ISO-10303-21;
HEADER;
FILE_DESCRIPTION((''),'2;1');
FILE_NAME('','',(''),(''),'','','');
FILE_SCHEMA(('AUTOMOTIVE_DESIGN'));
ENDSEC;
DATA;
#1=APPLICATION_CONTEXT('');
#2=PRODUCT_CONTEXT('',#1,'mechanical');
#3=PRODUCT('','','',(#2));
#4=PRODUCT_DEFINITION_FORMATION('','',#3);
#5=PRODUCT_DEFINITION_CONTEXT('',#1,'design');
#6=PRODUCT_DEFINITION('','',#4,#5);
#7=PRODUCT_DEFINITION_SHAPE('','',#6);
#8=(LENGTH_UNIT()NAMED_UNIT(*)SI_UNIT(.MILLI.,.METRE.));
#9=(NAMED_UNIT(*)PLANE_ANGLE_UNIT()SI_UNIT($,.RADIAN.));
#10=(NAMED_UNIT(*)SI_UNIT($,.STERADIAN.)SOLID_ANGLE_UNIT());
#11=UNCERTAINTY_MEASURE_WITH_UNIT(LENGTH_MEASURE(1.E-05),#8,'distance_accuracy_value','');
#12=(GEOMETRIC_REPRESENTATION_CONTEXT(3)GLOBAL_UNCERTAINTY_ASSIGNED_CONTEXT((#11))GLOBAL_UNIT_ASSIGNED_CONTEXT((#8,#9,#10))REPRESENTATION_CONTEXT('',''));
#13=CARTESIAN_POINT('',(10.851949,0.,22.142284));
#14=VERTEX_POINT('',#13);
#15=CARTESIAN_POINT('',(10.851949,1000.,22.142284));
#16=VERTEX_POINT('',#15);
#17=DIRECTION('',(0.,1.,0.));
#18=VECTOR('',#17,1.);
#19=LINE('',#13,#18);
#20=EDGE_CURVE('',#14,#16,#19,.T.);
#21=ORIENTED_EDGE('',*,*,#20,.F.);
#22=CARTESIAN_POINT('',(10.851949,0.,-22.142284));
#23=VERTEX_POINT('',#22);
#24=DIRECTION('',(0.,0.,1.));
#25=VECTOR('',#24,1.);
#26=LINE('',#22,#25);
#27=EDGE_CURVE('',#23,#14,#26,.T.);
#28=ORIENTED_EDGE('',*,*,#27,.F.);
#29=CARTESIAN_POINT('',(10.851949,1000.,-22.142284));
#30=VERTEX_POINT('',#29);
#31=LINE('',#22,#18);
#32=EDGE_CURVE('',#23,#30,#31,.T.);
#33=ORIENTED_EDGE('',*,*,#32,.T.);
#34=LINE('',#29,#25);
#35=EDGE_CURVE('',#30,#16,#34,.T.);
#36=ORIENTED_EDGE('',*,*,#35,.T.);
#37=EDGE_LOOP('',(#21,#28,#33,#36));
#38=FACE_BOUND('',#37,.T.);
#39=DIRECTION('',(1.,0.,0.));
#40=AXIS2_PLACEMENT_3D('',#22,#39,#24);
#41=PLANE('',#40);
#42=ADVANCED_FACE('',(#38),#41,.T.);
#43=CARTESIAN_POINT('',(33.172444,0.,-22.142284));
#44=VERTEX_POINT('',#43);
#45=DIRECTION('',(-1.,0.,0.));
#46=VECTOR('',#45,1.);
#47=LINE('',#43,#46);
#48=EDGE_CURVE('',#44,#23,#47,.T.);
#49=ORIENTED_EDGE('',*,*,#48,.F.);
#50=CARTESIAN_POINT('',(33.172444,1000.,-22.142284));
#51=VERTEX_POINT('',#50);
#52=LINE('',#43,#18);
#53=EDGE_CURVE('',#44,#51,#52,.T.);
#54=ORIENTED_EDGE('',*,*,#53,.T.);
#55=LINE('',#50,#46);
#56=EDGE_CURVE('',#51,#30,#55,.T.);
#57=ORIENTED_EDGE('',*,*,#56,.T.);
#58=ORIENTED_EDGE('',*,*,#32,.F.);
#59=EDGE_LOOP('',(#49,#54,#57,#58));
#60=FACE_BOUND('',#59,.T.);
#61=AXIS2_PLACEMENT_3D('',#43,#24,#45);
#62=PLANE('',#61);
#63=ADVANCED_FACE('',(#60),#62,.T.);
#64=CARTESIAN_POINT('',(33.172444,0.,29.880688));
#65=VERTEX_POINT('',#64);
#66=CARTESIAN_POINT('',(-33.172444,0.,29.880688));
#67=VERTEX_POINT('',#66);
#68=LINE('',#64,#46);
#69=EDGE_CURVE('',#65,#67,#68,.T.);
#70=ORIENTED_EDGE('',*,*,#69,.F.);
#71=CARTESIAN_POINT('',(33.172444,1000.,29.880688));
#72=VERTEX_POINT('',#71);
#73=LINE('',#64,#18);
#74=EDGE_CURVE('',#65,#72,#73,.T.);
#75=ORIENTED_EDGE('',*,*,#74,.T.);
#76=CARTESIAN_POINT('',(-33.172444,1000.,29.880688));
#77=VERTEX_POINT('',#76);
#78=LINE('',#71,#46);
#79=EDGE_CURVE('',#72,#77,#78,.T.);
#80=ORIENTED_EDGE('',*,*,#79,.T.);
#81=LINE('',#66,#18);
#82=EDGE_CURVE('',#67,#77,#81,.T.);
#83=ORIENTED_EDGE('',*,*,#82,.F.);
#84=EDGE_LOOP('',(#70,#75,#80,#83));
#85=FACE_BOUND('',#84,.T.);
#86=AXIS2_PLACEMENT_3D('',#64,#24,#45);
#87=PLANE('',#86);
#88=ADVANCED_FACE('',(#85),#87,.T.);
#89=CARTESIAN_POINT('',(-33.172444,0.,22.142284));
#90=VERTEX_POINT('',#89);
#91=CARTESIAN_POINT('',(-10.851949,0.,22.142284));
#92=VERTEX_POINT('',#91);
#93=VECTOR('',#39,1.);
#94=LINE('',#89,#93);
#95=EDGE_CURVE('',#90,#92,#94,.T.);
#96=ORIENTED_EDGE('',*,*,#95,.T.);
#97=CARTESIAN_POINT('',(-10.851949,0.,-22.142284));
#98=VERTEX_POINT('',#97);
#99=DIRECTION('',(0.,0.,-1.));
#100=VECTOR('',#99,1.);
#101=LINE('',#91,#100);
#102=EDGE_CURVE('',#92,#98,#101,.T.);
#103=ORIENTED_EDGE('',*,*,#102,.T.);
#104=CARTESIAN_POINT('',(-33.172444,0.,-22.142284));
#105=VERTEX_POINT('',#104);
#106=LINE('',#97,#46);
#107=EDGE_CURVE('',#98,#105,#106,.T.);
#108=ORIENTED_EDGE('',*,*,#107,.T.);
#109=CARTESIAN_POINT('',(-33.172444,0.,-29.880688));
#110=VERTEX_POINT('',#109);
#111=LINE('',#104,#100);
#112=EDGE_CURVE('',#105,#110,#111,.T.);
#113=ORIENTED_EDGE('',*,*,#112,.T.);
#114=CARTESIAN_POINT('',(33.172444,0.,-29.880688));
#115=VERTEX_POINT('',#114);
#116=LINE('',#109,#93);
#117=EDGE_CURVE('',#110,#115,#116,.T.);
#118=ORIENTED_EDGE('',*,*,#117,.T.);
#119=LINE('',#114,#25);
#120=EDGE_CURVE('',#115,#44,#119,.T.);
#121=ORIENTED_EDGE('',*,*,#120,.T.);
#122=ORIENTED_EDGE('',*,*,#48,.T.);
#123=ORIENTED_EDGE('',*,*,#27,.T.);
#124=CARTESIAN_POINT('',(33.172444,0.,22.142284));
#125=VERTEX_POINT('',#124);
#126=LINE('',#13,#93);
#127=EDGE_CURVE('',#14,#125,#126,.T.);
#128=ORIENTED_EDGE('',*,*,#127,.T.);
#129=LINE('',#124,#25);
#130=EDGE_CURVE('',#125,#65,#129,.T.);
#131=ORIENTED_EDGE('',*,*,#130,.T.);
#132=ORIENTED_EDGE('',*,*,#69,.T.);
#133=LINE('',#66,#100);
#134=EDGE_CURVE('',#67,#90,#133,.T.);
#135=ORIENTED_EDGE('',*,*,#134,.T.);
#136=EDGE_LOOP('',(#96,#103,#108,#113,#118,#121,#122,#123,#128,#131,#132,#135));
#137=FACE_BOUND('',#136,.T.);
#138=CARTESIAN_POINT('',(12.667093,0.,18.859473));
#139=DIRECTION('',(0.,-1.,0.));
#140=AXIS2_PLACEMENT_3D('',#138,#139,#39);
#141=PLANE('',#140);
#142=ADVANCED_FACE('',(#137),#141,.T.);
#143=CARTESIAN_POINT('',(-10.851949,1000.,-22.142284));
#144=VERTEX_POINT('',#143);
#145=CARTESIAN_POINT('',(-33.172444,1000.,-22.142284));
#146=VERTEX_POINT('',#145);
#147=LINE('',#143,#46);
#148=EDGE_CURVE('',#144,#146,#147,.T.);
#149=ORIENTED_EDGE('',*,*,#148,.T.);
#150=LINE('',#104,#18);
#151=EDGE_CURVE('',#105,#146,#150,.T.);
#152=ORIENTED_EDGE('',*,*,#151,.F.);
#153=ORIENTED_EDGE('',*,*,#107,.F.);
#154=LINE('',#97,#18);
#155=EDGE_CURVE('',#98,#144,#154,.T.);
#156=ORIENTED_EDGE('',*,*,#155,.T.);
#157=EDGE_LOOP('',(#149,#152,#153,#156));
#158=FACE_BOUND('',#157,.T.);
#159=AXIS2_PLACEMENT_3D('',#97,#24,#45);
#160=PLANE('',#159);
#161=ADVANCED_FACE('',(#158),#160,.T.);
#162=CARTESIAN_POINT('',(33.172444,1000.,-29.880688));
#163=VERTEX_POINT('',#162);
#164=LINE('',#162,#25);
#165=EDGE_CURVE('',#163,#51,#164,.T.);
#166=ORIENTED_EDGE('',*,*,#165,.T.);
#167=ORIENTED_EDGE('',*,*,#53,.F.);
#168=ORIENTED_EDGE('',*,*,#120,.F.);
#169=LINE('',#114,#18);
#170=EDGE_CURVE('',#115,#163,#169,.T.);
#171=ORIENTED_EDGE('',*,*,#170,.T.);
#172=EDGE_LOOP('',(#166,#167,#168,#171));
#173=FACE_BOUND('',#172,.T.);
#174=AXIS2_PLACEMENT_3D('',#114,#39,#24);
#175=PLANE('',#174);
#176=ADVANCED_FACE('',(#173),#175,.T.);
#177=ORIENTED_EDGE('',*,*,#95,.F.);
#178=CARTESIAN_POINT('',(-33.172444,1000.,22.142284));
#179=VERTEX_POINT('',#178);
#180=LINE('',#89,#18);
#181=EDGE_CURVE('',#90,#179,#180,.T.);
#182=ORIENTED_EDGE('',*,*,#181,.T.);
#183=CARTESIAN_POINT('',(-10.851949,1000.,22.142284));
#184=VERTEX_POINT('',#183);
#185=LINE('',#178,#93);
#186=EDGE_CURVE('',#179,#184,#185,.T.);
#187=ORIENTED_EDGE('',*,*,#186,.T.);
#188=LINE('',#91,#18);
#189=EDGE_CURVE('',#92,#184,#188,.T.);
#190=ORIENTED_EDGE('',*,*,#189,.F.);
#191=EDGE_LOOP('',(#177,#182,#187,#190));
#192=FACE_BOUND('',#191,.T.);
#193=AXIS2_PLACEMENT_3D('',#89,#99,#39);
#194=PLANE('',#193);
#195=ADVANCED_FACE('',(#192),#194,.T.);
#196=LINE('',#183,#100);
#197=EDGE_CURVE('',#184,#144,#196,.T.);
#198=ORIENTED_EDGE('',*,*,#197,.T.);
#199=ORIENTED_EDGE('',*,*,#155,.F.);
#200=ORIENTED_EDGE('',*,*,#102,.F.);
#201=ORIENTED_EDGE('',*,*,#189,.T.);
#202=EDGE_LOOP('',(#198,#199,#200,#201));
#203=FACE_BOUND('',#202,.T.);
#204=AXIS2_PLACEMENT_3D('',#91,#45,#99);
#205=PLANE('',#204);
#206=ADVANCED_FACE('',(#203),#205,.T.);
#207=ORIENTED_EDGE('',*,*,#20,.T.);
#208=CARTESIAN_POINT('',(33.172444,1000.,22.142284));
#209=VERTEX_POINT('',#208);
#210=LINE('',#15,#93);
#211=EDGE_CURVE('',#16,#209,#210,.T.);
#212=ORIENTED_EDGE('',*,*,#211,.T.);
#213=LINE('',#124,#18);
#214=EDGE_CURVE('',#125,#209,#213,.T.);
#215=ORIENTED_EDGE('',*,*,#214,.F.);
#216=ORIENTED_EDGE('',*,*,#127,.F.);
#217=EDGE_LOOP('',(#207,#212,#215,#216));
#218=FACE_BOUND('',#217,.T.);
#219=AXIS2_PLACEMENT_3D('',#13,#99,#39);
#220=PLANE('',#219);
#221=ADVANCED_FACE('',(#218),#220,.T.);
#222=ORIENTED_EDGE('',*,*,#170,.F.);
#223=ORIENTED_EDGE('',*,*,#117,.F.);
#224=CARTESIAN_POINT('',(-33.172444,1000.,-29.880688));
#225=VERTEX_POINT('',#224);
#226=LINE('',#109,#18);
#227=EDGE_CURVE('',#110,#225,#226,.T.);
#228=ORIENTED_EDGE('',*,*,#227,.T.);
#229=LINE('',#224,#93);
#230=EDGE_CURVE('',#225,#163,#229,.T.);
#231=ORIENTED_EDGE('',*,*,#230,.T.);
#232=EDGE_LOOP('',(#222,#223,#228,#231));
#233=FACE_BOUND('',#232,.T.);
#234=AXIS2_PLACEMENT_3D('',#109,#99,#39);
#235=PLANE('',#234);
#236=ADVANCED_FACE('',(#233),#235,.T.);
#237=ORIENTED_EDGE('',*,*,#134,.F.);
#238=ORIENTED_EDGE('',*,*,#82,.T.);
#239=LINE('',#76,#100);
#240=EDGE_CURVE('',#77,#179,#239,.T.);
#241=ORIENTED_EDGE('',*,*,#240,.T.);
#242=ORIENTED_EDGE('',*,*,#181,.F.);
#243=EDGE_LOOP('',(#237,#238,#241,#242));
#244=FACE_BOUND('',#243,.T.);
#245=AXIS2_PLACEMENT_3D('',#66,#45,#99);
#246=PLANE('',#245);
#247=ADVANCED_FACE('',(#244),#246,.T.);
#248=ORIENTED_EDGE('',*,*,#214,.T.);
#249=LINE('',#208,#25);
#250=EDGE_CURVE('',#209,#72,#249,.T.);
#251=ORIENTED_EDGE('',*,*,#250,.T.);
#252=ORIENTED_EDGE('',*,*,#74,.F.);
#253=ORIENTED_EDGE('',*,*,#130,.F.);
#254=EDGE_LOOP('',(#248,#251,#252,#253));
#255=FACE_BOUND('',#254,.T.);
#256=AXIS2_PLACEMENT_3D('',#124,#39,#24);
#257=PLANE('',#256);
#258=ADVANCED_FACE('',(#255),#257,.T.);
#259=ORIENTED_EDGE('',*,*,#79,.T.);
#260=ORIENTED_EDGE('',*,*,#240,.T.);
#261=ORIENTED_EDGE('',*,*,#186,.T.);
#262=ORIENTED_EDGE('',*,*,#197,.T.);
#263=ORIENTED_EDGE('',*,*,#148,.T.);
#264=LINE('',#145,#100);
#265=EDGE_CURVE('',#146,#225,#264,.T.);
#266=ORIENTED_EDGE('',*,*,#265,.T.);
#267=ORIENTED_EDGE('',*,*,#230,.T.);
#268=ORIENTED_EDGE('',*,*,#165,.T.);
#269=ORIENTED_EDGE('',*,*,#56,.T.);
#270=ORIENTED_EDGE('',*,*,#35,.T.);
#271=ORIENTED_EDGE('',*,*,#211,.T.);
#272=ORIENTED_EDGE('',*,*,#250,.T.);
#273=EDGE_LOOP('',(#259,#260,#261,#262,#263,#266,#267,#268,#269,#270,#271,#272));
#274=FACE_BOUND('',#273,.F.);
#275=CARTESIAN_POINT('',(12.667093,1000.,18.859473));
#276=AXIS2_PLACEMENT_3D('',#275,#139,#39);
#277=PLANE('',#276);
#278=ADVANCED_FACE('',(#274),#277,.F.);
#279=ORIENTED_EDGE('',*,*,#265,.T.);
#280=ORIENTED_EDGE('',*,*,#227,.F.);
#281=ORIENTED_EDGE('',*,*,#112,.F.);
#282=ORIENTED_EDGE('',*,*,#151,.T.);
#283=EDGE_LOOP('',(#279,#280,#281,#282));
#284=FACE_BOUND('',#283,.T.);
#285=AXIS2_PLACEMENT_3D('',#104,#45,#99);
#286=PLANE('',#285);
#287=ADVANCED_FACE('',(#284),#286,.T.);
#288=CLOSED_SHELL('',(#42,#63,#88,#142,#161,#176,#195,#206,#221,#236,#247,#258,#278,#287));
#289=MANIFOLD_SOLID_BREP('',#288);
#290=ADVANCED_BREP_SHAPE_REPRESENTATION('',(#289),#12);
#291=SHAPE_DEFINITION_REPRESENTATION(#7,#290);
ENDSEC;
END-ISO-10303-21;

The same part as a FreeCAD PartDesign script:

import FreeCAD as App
import Part
import Sketcher
from FreeCAD import Vector

doc = App.newDocument("Part")
body = doc.addObject("PartDesign::Body", "Body")

# Sketch on XZ plane
sketch1 = body.newObject("Sketcher::SketchObject", "Sketch")
sketch1.AttachmentSupport = (doc.getObject("XZ_Plane"), [""])
sketch1.MapMode = "FlatFace"
sketch1.addGeometry([
    Part.LineSegment(Vector(-11, -22, 0), Vector(-33, -22, 0)),  # 0
    Part.LineSegment(Vector(-33, -22, 0), Vector(-33, -30, 0)),  # 1
    Part.LineSegment(Vector(-33, -30, 0), Vector(33, -30, 0)),  # 2
    Part.LineSegment(Vector(33, -30, 0), Vector(33, -22, 0)),  # 3
    Part.LineSegment(Vector(33, -22, 0), Vector(11, -22, 0)),  # 4
    Part.LineSegment(Vector(11, -22, 0), Vector(11, 22, 0)),  # 5
    Part.LineSegment(Vector(11, 22, 0), Vector(33, 22, 0)),  # 6
    Part.LineSegment(Vector(33, 22, 0), Vector(33, 30, 0)),  # 7
    Part.LineSegment(Vector(33, 30, 0), Vector(-33, 30, 0)),  # 8
    Part.LineSegment(Vector(-33, 30, 0), Vector(-33, 22, 0)),  # 9
    Part.LineSegment(Vector(-33, 22, 0), Vector(-11, 22, 0)),  # 10
    Part.LineSegment(Vector(-11, 22, 0), Vector(-11, -22, 0)),  # 11
], False)
sketch1.addConstraint([
    Sketcher.Constraint("Coincident", 0, 2, 1, 1),
    Sketcher.Constraint("Coincident", 1, 2, 2, 1),
    Sketcher.Constraint("Coincident", 2, 2, 3, 1),
    Sketcher.Constraint("Coincident", 3, 2, 4, 1),
    Sketcher.Constraint("Coincident", 4, 2, 5, 1),
    Sketcher.Constraint("Coincident", 5, 2, 6, 1),
    Sketcher.Constraint("Coincident", 6, 2, 7, 1),
    Sketcher.Constraint("Coincident", 7, 2, 8, 1),
    Sketcher.Constraint("Coincident", 8, 2, 9, 1),
    Sketcher.Constraint("Coincident", 9, 2, 10, 1),
    Sketcher.Constraint("Coincident", 10, 2, 11, 1),
    Sketcher.Constraint("Coincident", 11, 2, 0, 1),
    Sketcher.Constraint("Horizontal", 0),
    Sketcher.Constraint("Vertical", 1),
    Sketcher.Constraint("Horizontal", 2),
    Sketcher.Constraint("Vertical", 3),
    Sketcher.Constraint("Horizontal", 4),
    Sketcher.Constraint("Vertical", 5),
    Sketcher.Constraint("Horizontal", 6),
    Sketcher.Constraint("Vertical", 7),
    Sketcher.Constraint("Horizontal", 8),
    Sketcher.Constraint("Vertical", 9),
    Sketcher.Constraint("Horizontal", 10),
    Sketcher.Constraint("Vertical", 11),
    Sketcher.Constraint("Symmetric", 0, 2, 6, 2, -1, 1),
    Sketcher.Constraint("Symmetric", 2, 2, 8, 2, -1, 1),
    Sketcher.Constraint("Symmetric", 4, 2, 10, 2, -1, 1),
    Sketcher.Constraint("Symmetric", 0, 2, 3, 2, -2),
    Sketcher.Constraint("DistanceX", 0, 2, 0, 1, 22.320495),
    Sketcher.Constraint("DistanceX", 2, 1, 2, 2, 66.344888),
    Sketcher.Constraint("DistanceY", 1, 2, 1, 1, 7.738404),
    Sketcher.Constraint("DistanceY", 5, 1, 5, 2, 44.284568),
])
pad1 = body.newObject("PartDesign::Pad", "Pad")
pad1.Profile = sketch1
pad1.Length = 1000
pad1.Reversed = True

doc.recompute()
